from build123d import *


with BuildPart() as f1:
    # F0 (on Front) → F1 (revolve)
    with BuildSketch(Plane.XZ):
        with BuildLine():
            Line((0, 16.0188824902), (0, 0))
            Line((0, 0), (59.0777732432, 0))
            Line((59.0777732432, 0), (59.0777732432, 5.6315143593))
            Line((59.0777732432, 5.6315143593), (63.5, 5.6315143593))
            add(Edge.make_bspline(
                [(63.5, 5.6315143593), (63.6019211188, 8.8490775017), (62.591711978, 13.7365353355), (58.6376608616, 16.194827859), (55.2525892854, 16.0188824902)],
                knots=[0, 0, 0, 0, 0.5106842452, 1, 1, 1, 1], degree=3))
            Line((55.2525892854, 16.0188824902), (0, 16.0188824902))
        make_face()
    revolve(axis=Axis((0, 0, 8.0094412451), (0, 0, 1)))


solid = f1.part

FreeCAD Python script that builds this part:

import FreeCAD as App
import Part
import Sketcher

V = App.Vector
Q = App.Units.Quantity

doc = App.newDocument("Part")
body = doc.addObject("PartDesign::Body", "Body")

# Sketch on XZ plane
sketch1 = doc.addObject("Sketcher::SketchObject", "Sketch")
body.addObject(sketch1)
sketch1.AttachmentSupport = (doc.XZ_Plane, [""])
sketch1.MapMode = "FlatFace"
sketch1.addGeometry([
    Part.LineSegment(V(0, 16.018882, 0), V(0, 0, 0)),  # 0
    Part.LineSegment(V(0, 0, 0), V(59.077773, 0, 0)),  # 1
    Part.LineSegment(V(59.077773, 0, 0), V(59.077773, 5.631514, 0)),  # 2
    Part.LineSegment(V(59.077773, 5.631514, 0), V(63.5, 5.631514, 0)),  # 3
    Part.BSplineCurve([V(63.5, 5.631514, 0), V(63.601921, 8.849078, 0), V(62.591712, 13.736535, 0), V(58.637661, 16.194828, 0), V(55.252589, 16.018882, 0)], [4, 1, 4], [0, 0.510684245, 1], False, 3, [1, 1, 1, 1, 1], False),  # 4
    Part.LineSegment(V(55.252589, 16.018882, 0), V(0, 16.018882, 0)),  # 5
], False)
sketch1.addConstraint([
    Sketcher.Constraint("Block", 4),
    Sketcher.Constraint("Coincident", 0, 2, 1, 1),
    Sketcher.Constraint("Coincident", 1, 2, 2, 1),
    Sketcher.Constraint("Coincident", 2, 2, 3, 1),
    Sketcher.Constraint("Coincident", 3, 2, 4, 1),
    Sketcher.Constraint("Coincident", 4, 2, 5, 1),
    Sketcher.Constraint("Coincident", 5, 2, 0, 1),
    Sketcher.Constraint("Vertical", 0),
    Sketcher.Constraint("Horizontal", 1),
    Sketcher.Constraint("Vertical", 2),
    Sketcher.Constraint("Horizontal", 3),
    Sketcher.Constraint("Horizontal", 5),
    Sketcher.Constraint("Coincident", 0, 2, -1, 1),
    Sketcher.Constraint("DistanceX", 1, 1, 1, 2, Q("59.077773 mm")),
])
revolution = doc.addObject("PartDesign::Revolution", "Revolution")
body.addObject(revolution)
revolution.Profile = sketch1
revolution.ReferenceAxis = (sketch1, ["V_Axis"])
revolution.Angle = 360

doc.recompute()
